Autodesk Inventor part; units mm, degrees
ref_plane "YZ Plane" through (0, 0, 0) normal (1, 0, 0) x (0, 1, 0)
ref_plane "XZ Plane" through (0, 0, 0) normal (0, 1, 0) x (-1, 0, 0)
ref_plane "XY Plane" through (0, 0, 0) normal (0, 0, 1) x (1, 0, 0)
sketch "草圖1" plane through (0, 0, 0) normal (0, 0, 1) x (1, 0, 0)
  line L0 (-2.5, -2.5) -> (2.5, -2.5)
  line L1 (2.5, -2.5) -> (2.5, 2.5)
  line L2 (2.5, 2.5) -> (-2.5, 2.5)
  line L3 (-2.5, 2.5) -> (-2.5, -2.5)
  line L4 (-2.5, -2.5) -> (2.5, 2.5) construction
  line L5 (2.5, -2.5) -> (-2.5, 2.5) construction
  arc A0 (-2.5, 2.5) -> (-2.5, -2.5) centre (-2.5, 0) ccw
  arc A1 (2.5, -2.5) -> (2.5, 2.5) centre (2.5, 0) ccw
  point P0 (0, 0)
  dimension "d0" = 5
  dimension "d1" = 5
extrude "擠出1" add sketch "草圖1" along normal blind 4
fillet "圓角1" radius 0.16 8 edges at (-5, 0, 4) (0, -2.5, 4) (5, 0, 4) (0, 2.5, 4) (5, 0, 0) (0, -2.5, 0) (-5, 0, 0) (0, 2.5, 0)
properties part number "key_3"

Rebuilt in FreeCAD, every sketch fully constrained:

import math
import FreeCAD as App
import Part
import Sketcher
Q = App.Units.Quantity


def edges_at(feature, points):
    """Names of the edges that pass closest to the given points."""
    edges = feature.Shape.Edges
    near = lambda p: min(range(len(edges)), key=lambda i: edges[i].distToShape(Part.Vertex(*p))[0])
    return sorted({f"Edge{near(p) + 1}" for p in points})

doc = App.newDocument("Part")
params = doc.addObject("Spreadsheet::Sheet", "Params")
for row, (alias, value) in enumerate([
    ("sketch1_radius", "2.5 mm"),
    ("sketch1_width", "5 mm"),
    ("pad1_length", "4 mm"),
    ("fillet_radius", "0.16 mm"),
], start=1):
    params.set(f"A{row}", alias)
    params.set(f"B{row}", "=" + value)
    params.setAlias(f"B{row}", alias)

body = doc.addObject("PartDesign::Body", "Body")

# Sketch on XY plane
sketch1 = body.newObject("Sketcher::SketchObject", "Sketch")
sketch1.AttachmentSupport = (doc.getObject("XY_Plane"), [""])
sketch1.MapMode = "FlatFace"
sketch1.addGeometry(Part.LineSegment(App.Vector(2.5, 2.5, 0), App.Vector(-2.5, 2.5, 0)), False)
sketch1.addGeometry(Part.ArcOfCircle(Part.Circle(App.Vector(-2.5, 0, 0), App.Vector(0, 0, 1), 2.5), math.radians(90), math.radians(270)), False)
sketch1.addGeometry(Part.LineSegment(App.Vector(-2.5, -2.5, 0), App.Vector(2.5, -2.5, 0)), False)
sketch1.addGeometry(Part.ArcOfCircle(Part.Circle(App.Vector(2.5, 0, 0), App.Vector(0, 0, 1), 2.5), math.radians(-90), math.radians(90)), False)
sketch1.addConstraint(Sketcher.Constraint("Tangent", 0, 2, 1, 1))
sketch1.addConstraint(Sketcher.Constraint("Tangent", 1, 2, 2, 1))
sketch1.addConstraint(Sketcher.Constraint("Tangent", 2, 2, 3, 1))
sketch1.addConstraint(Sketcher.Constraint("Tangent", 3, 2, 0, 1))
sketch1.addConstraint(Sketcher.Constraint("Horizontal", 0))
sketch1.addConstraint(Sketcher.Constraint("Horizontal", 2))
sketch1.addConstraint(Sketcher.Constraint("Symmetric", 1, 3, 3, 3, -1, 1))
sketch1.addConstraint(Sketcher.Constraint("Radius", 1, Q("2.5 mm")))
sketch1.addConstraint(Sketcher.Constraint("DistanceX", 0, 2, 0, 1, Q("5 mm")))
sketch1.setExpression("Constraints[7]", "Params.sketch1_radius")
sketch1.setExpression("Constraints[8]", "Params.sketch1_width")
pad1 = body.newObject("PartDesign::Pad", "Pad")
pad1.Profile = sketch1
pad1.setExpression("Length", "Params.pad1_length")
doc.recompute()

fillet = body.newObject("PartDesign::Fillet", "Fillet")
fillet.Base = (pad1, edges_at(pad1, [
    (-5, 0, 4),
    (0, -2.5, 4),
    (5, 0, 4),
    (0, 2.5, 4),
    (5, 0, 0),
    (0, -2.5, 0),
    (-5, 0, 0),
    (0, 2.5, 0),
]))
fillet.setExpression("Radius", "Params.fillet_radius")

doc.recompute()
